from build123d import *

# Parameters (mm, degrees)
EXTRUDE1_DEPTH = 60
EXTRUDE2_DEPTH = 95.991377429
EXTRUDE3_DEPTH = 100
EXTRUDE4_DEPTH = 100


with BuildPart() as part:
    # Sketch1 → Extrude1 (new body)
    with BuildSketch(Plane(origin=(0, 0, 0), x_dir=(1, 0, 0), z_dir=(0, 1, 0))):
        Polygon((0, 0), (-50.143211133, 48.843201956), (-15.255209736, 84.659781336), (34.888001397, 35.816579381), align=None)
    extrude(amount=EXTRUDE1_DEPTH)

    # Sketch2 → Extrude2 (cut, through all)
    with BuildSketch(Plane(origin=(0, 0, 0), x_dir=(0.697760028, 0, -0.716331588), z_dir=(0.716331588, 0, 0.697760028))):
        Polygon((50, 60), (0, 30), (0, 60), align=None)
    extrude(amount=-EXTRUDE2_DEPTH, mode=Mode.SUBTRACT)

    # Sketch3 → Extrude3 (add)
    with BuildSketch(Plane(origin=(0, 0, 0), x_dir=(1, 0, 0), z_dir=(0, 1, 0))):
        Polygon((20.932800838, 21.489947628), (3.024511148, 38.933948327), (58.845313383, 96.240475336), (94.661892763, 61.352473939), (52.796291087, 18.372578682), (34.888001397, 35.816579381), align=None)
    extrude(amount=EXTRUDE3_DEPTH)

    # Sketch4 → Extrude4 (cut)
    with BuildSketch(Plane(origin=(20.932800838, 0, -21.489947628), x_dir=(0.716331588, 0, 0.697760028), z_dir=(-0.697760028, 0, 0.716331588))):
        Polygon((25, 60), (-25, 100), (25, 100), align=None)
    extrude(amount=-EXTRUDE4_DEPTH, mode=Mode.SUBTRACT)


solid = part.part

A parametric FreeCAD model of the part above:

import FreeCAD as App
import Part
import Sketcher
from FreeCAD import Vector

doc = App.newDocument("Part")
body = doc.addObject("PartDesign::Body", "Body")

# Sketch on XZ plane
sketch1 = doc.addObject("Sketcher::SketchObject", "Sketch")
body.addObject(sketch1)
sketch1.AttachmentSupport = (doc.XZ_Plane, [""])
sketch1.MapMode = "FlatFace"
sketch1.addGeometry([
    Part.LineSegment(Vector(-50, -49, 0), Vector(0, 0, 0)),
    Part.LineSegment(Vector(0, 0, 0), Vector(35, -36, 0)),
    Part.LineSegment(Vector(35, -36, 0), Vector(-15, -85, 0)),
    Part.LineSegment(Vector(-15, -85, 0), Vector(-50, -49, 0)),
], False)
sketch1.addConstraint([
    Sketcher.Constraint("Coincident", 0, 2, 1, 1),
    Sketcher.Constraint("Coincident", 1, 2, 2, 1),
    Sketcher.Constraint("Coincident", 2, 2, 3, 1),
    Sketcher.Constraint("Coincident", 3, 2, 0, 1),
    Sketcher.Constraint("Coincident", 0, 2, -1, 1),
    Sketcher.Constraint("Perpendicular", 0, 1),
    Sketcher.Constraint("Perpendicular", 1, 2),
    Sketcher.Constraint("Perpendicular", 2, 3),
    Sketcher.Constraint("Distance", 0, 70.0),
    Sketcher.Constraint("Distance", 1, 50.0),
    Sketcher.Constraint("DistanceX", -1, 1, 1, 2, 34.888001),
])
pad1 = doc.addObject("PartDesign::Pad", "Pad")
body.addObject(pad1)
pad1.Profile = sketch1
pad1.Length = 60
pad1.Reversed = True

# Sketch on an angled plane
sketch2 = doc.addObject("Sketcher::SketchObject", "Sketch001")
body.addObject(sketch2)
sketch2.Placement = App.Placement(Vector(0, 0, 0), App.Rotation(Vector(0.697760028, 0, -0.716331588), Vector(0, 1.000000001, 0), Vector(0.716331588, 0, 0.697760028), "ZXY"))
sketch2.addGeometry([
    Part.LineSegment(Vector(0, 30, 0), Vector(50, 60, 0)),
    Part.LineSegment(Vector(50, 60, 0), Vector(0, 60, 0)),
    Part.LineSegment(Vector(0, 60, 0), Vector(0, 30, 0)),
], False)
sketch2.addConstraint([
    Sketcher.Constraint("Coincident", 0, 2, 1, 1),
    Sketcher.Constraint("Coincident", 1, 2, 2, 1),
    Sketcher.Constraint("Coincident", 2, 2, 0, 1),
    Sketcher.Constraint("Horizontal", 1),
    Sketcher.Constraint("Vertical", 2),
    Sketcher.Constraint("PointOnObject", 1, 2, -2),
    Sketcher.Constraint("DistanceX", 1, 2, 1, 1, 50.0),
    Sketcher.Constraint("DistanceY", 2, 2, 2, 1, 30.0),
    Sketcher.Constraint("DistanceY", -1, 1, 0, 2, 60.0),
])
pocket1 = doc.addObject("PartDesign::Pocket", "Pocket")
body.addObject(pocket1)
pocket1.Profile = sketch2
pocket1.Type = "ThroughAll"

# Sketch on XZ plane
sketch3 = doc.addObject("Sketcher::SketchObject", "Sketch002")
body.addObject(sketch3)
sketch3.AttachmentSupport = (doc.XZ_Plane, [""])
sketch3.MapMode = "FlatFace"
sketch3.addGeometry([
    Part.LineSegment(Vector(3, -39, 0), Vector(21, -21, 0)),  # 0
    Part.LineSegment(Vector(21, -21, 0), Vector(35, -36, 0)),  # 1
    Part.LineSegment(Vector(35, -36, 0), Vector(53, -18, 0)),  # 2
    Part.LineSegment(Vector(53, -18, 0), Vector(95, -61, 0)),  # 3
    Part.LineSegment(Vector(95, -61, 0), Vector(59, -96, 0)),  # 4
    Part.LineSegment(Vector(59, -96, 0), Vector(3, -39, 0)),  # 5
], False)
sketch3.addConstraint([
    Sketcher.Constraint("Coincident", 0, 2, 1, 1),
    Sketcher.Constraint("Coincident", 1, 2, 2, 1),
    Sketcher.Constraint("Coincident", 2, 2, 3, 1),
    Sketcher.Constraint("Coincident", 3, 2, 4, 1),
    Sketcher.Constraint("Coincident", 4, 2, 5, 1),
    Sketcher.Constraint("Coincident", 5, 2, 0, 1),
    Sketcher.Constraint("Perpendicular", 0, 1),
    Sketcher.Constraint("Perpendicular", 1, 2),
    Sketcher.Constraint("Perpendicular", 2, 3),
    Sketcher.Constraint("Perpendicular", 3, 4),
    Sketcher.Constraint("Perpendicular", 4, 5),
    Sketcher.Constraint("Equal", 0, 2),
    Sketcher.Constraint("Distance", 0, 25.0),
    Sketcher.Constraint("Distance", 1, 20.0),
    Sketcher.Constraint("Distance", 3, 60.0),
    Sketcher.Constraint("DistanceX", -1, 1, 1, 2, 34.888001),
    Sketcher.Constraint("DistanceY", 1, 2, 2, 2, 17.444001),
    Sketcher.Constraint("DistanceY", 1, 2, -1, 1, 35.816579),
])
pad2 = doc.addObject("PartDesign::Pad", "Pad001")
body.addObject(pad2)
pad2.Profile = sketch3
pad2.Length = 100
pad2.Reversed = True

# Sketch on an angled plane
sketch4 = doc.addObject("Sketcher::SketchObject", "Sketch003")
body.addObject(sketch4)
sketch4.Placement = App.Placement(Vector(20.932801, 0, -21.489948), App.Rotation(Vector(0.716331588, 0, 0.697760028), Vector(0, 1.000000001, 0), Vector(-0.697760028, 0, 0.716331588), "ZXY"))
sketch4.addGeometry([
    Part.LineSegment(Vector(-25, 100, 0), Vector(25, 60, 0)),
    Part.LineSegment(Vector(25, 60, 0), Vector(25, 100, 0)),
    Part.LineSegment(Vector(25, 100, 0), Vector(-25, 100, 0)),
], False)
sketch4.addConstraint([
    Sketcher.Constraint("Coincident", 0, 2, 1, 1),
    Sketcher.Constraint("Coincident", 1, 2, 2, 1),
    Sketcher.Constraint("Coincident", 2, 2, 0, 1),
    Sketcher.Constraint("Vertical", 1),
    Sketcher.Constraint("Horizontal", 2),
    Sketcher.Constraint("DistanceX", 2, 2, 2, 1, 50.0),
    Sketcher.Constraint("DistanceY", 1, 1, 1, 2, 40.0),
    Sketcher.Constraint("DistanceX", -1, 1, 0, 2, 25.0),
    Sketcher.Constraint("DistanceY", -1, 1, 0, 2, 60.0),
])
pocket2 = doc.addObject("PartDesign::Pocket", "Pocket001")
body.addObject(pocket2)
pocket2.Profile = sketch4
pocket2.Length = 100

doc.recompute()
